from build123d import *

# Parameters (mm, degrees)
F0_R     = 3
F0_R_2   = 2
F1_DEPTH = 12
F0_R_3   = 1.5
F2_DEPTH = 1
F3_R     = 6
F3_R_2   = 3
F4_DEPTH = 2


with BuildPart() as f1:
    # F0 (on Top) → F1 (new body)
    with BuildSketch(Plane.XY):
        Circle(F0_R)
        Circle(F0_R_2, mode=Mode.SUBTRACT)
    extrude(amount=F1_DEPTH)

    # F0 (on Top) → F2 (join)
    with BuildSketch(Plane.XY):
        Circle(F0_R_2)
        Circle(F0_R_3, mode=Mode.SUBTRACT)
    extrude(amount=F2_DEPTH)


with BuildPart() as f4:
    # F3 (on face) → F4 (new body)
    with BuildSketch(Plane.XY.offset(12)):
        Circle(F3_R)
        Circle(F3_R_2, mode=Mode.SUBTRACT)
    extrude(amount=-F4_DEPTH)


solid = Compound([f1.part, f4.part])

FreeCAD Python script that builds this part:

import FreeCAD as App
import Part
import Sketcher
Q = App.Units.Quantity

doc = App.newDocument("Part")
body = doc.addObject("PartDesign::Body", "Body")

sketch1 = body.newObject("Sketcher::SketchObject", "Sketch")
sketch1.AttachmentSupport = (doc.getObject("XY_Plane"), [""])
sketch1.MapMode = "FlatFace"
sketch1.addGeometry(Part.Circle(App.Vector(0, 0, 0), App.Vector(0, 0, 1), 3), False)
sketch1.addGeometry(Part.Circle(App.Vector(0, 0, 0), App.Vector(0, 0, 1), 2), False)
sketch1.addConstraint(Sketcher.Constraint("Coincident", 0, 3, -1, 1))
sketch1.addConstraint(Sketcher.Constraint("Coincident", 1, 3, -1, 1))
sketch1.addConstraint(Sketcher.Constraint("Diameter", 0, Q("6 mm")))
sketch1.addConstraint(Sketcher.Constraint("Diameter", 1, Q("4 mm")))
pad1 = body.newObject("PartDesign::Pad", "Pad")
pad1.Profile = sketch1
pad1.Length = 12

sketch2 = body.newObject("Sketcher::SketchObject", "Sketch001")
sketch2.AttachmentSupport = (doc.getObject("XY_Plane"), [""])
sketch2.MapMode = "FlatFace"
sketch2.addGeometry(Part.Circle(App.Vector(0, 0, 0), App.Vector(0, 0, 1), 2), False)
sketch2.addGeometry(Part.Circle(App.Vector(0, 0, 0), App.Vector(0, 0, 1), 1.5), False)
sketch2.addConstraint(Sketcher.Constraint("Coincident", 0, 3, -1, 1))
sketch2.addConstraint(Sketcher.Constraint("Coincident", 1, 3, -1, 1))
sketch2.addConstraint(Sketcher.Constraint("Diameter", 0, Q("4 mm")))
sketch2.addConstraint(Sketcher.Constraint("Diameter", 1, Q("3 mm")))
pad2 = body.newObject("PartDesign::Pad", "Pad001")
pad2.Profile = sketch2
pad2.Length = 1
body2 = doc.addObject("PartDesign::Body", "Body001")

sketch3 = body2.newObject("Sketcher::SketchObject", "Sketch002")
sketch3.AttachmentSupport = (doc.getObject("XY_Plane001"), [""])
sketch3.MapMode = "FlatFace"
sketch3.AttachmentOffset = App.Placement(App.Vector(0, 0, 12), App.Rotation())
sketch3.addGeometry(Part.Circle(App.Vector(0, 0, 0), App.Vector(0, 0, 1), 6), False)
sketch3.addGeometry(Part.Circle(App.Vector(0, 0, 0), App.Vector(0, 0, 1), 3), False)
sketch3.addConstraint(Sketcher.Constraint("Coincident", 0, 3, -1, 1))
sketch3.addConstraint(Sketcher.Constraint("Coincident", 1, 3, -1, 1))
sketch3.addConstraint(Sketcher.Constraint("Diameter", 0, Q("12 mm")))
sketch3.addConstraint(Sketcher.Constraint("Diameter", 1, Q("6 mm")))
pad3 = body2.newObject("PartDesign::Pad", "Pad002")
pad3.Profile = sketch3
pad3.Length = 2
pad3.Reversed = True

doc.recompute()
